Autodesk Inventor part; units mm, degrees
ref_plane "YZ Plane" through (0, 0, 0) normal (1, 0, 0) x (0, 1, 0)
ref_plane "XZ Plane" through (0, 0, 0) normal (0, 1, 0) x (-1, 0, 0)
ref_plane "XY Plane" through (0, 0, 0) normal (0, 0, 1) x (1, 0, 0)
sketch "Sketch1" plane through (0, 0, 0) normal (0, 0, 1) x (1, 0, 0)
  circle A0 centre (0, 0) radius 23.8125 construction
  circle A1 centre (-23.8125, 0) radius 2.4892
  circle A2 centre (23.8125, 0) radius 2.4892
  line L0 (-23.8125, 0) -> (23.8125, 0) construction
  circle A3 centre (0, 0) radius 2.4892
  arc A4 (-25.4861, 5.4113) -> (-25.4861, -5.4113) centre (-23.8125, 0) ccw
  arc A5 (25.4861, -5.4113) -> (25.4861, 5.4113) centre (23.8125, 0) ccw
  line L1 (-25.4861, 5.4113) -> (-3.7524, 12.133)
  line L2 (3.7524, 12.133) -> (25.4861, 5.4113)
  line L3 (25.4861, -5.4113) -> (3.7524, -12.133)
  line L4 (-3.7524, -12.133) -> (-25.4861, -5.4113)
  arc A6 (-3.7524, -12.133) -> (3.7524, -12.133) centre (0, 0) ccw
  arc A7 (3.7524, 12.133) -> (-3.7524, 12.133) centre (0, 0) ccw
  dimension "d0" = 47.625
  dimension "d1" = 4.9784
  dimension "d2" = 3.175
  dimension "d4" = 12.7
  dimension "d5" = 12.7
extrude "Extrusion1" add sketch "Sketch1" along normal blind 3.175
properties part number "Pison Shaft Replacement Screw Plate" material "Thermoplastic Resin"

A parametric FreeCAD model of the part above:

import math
import FreeCAD as App
import Part
import Sketcher

V = App.Vector
Q = App.Units.Quantity

doc = App.newDocument("Part")
body = doc.addObject("PartDesign::Body", "Body")

# Sketch on XY plane
sketch1 = doc.addObject("Sketcher::SketchObject", "Sketch")
body.addObject(sketch1)
sketch1.AttachmentSupport = (doc.XY_Plane, [""])
sketch1.MapMode = "FlatFace"
sketch1.addGeometry(Part.LineSegment(V(-3.8, 12.1, 0), V(-25.5, 5.4, 0)), False)
sketch1.addGeometry(Part.ArcOfCircle(Part.Circle(V(-23.8, 0, 0), V(0, 0, 1), 5.7), math.radians(107), math.radians(253)), False)
sketch1.addGeometry(Part.LineSegment(V(-25.5, -5.4, 0), V(-3.8, -12.1, 0)), False)
sketch1.addGeometry(Part.ArcOfCircle(Part.Circle(V(0, 0, 0), V(0, 0, 1), 12.7), math.radians(-107), math.radians(-73)), False)
sketch1.addGeometry(Part.LineSegment(V(3.8, -12.1, 0), V(25.5, -5.4, 0)), False)
sketch1.addGeometry(Part.ArcOfCircle(Part.Circle(V(23.8, 0, 0), V(0, 0, 1), 5.7), math.radians(-73), math.radians(73)), False)
sketch1.addGeometry(Part.LineSegment(V(25.5, 5.4, 0), V(3.8, 12.1, 0)), False)
sketch1.addGeometry(Part.ArcOfCircle(Part.Circle(V(0, 0, 0), V(0, 0, 1), 12.7), math.radians(73), math.radians(107)), False)
sketch1.addGeometry(Part.Circle(V(-23.8, 0, 0), V(0, 0, 1), 2.5), False)
sketch1.addGeometry(Part.Circle(V(0, 0, 0), V(0, 0, 1), 2.5), False)
sketch1.addGeometry(Part.Circle(V(23.8, 0, 0), V(0, 0, 1), 2.5), False)
sketch1.addConstraint(Sketcher.Constraint("Tangent", 0, 2, 1, 1))
sketch1.addConstraint(Sketcher.Constraint("Tangent", 1, 2, 2, 1))
sketch1.addConstraint(Sketcher.Constraint("Tangent", 2, 2, 3, 1))
sketch1.addConstraint(Sketcher.Constraint("Tangent", 3, 2, 4, 1))
sketch1.addConstraint(Sketcher.Constraint("Tangent", 4, 2, 5, 1))
sketch1.addConstraint(Sketcher.Constraint("Tangent", 5, 2, 6, 1))
sketch1.addConstraint(Sketcher.Constraint("Tangent", 6, 2, 7, 1))
sketch1.addConstraint(Sketcher.Constraint("Tangent", 7, 2, 0, 1))
sketch1.addConstraint(Sketcher.Constraint("Coincident", 3, 3, -1, 1))
sketch1.addConstraint(Sketcher.Constraint("Coincident", 7, 3, -1, 1))
sketch1.addConstraint(Sketcher.Constraint("Coincident", 9, 3, -1, 1))
sketch1.addConstraint(Sketcher.Constraint("Coincident", 8, 3, 1, 3))
sketch1.addConstraint(Sketcher.Constraint("Coincident", 10, 3, 5, 3))
sketch1.addConstraint(Sketcher.Constraint("Equal", 1, 5))
sketch1.addConstraint(Sketcher.Constraint("Equal", 3, 7))
sketch1.addConstraint(Sketcher.Constraint("Equal", 8, 9))
sketch1.addConstraint(Sketcher.Constraint("Equal", 9, 10))
sketch1.addConstraint(Sketcher.Constraint("Symmetric", 1, 3, 5, 3, -1, 1))
sketch1.addConstraint(Sketcher.Constraint("PointOnObject", 1, 3, -1))
sketch1.addConstraint(Sketcher.Constraint("Radius", 3, Q("0.5 in")))
sketch1.addConstraint(Sketcher.Constraint("Diameter", 8, Q("0.196 in")))
sketch1.addConstraint(Sketcher.Constraint("Radius", 1, Q("0.223 in")))
sketch1.addConstraint(Sketcher.Constraint("DistanceX", 1, 3, 5, 3, Q("1.875 in")))
pad1 = doc.addObject("PartDesign::Pad", "Pad")
body.addObject(pad1)
pad1.Profile = sketch1
pad1.Length = Q("0.125 in")

doc.recompute()
